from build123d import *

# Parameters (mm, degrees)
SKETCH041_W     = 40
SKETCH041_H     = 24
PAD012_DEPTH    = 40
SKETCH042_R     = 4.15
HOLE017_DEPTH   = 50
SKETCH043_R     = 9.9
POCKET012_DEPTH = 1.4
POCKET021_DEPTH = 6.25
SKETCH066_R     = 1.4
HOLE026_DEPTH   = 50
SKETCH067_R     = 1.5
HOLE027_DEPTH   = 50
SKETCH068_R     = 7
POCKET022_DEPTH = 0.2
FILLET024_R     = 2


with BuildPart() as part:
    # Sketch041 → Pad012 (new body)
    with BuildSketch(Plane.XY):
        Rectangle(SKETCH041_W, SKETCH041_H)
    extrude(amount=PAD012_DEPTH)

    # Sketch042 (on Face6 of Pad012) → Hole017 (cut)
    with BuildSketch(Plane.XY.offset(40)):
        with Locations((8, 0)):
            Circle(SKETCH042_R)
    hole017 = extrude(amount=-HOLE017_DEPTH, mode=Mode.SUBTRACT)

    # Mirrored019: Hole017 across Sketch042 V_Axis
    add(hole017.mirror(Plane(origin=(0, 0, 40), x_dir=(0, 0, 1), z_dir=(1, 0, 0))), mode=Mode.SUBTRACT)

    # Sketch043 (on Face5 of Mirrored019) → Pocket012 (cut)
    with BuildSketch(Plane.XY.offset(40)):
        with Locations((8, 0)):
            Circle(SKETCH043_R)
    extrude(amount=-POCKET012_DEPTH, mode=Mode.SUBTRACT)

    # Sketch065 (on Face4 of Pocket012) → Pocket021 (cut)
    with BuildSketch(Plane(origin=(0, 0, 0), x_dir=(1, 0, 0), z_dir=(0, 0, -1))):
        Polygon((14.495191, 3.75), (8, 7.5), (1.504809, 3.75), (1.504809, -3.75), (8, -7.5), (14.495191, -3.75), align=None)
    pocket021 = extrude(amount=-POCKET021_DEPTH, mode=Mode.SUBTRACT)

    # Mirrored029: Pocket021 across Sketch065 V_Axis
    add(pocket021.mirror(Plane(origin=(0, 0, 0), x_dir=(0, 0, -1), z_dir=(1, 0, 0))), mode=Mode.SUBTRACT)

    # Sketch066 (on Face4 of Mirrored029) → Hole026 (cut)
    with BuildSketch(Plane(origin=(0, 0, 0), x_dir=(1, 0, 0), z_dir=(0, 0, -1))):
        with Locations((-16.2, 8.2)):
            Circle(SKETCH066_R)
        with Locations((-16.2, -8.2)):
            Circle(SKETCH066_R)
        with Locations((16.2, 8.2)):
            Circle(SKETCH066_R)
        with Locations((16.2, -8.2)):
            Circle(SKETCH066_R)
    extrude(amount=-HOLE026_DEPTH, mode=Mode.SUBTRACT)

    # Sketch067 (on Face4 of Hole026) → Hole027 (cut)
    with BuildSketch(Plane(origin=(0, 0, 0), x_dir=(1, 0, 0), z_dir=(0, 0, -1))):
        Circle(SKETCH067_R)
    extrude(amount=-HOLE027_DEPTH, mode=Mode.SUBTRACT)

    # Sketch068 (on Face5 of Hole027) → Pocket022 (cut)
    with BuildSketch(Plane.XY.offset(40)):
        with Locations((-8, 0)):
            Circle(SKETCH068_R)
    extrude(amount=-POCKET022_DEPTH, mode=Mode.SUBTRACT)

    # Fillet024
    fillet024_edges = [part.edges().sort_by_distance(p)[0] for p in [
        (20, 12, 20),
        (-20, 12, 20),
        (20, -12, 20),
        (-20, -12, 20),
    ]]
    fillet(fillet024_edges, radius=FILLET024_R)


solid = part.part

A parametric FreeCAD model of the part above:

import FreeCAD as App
import Part
import Sketcher
Q = App.Units.Quantity


def edges_at(feature, points):
    """Names of the edges that pass closest to the given points."""
    edges = feature.Shape.Edges
    near = lambda p: min(range(len(edges)), key=lambda i: edges[i].distToShape(Part.Vertex(*p))[0])
    return sorted({f"Edge{near(p) + 1}" for p in points})


def add_polygon(sketch, points):
    """Adds a closed chain of lines whose ends are joined by coincident constraints."""
    first, n = sketch.GeometryCount, len(points)
    for a, b in zip(points, points[1:] + points[:1]):
        sketch.addGeometry(Part.LineSegment(App.Vector(*a, 0), App.Vector(*b, 0)), False)
    for i in range(n):
        sketch.addConstraint(Sketcher.Constraint("Coincident", first + i, 2, first + (i + 1) % n, 1))

doc = App.newDocument("Part")
body = doc.addObject("PartDesign::Body", "Body")

sketch1 = body.newObject("Sketcher::SketchObject", "Sketch")
sketch1.AttachmentSupport = (doc.getObject("XY_Plane"), [""])
sketch1.MapMode = "FlatFace"
add_polygon(sketch1, [(-20, 12), (-20, -12), (20, -12), (20, 12)])
sketch1.addConstraint(Sketcher.Constraint("Vertical", 0))
sketch1.addConstraint(Sketcher.Constraint("Horizontal", 1))
sketch1.addConstraint(Sketcher.Constraint("Vertical", 2))
sketch1.addConstraint(Sketcher.Constraint("Horizontal", 3))
sketch1.addConstraint(Sketcher.Constraint("Symmetric", 0, 2, 2, 2, -1, 1))
sketch1.addConstraint(Sketcher.Constraint("DistanceX", 1, 1, 1, 2, Q("40 mm")))
sketch1.addConstraint(Sketcher.Constraint("DistanceY", 0, 2, 0, 1, Q("24 mm")))
pad1 = body.newObject("PartDesign::Pad", "Pad")
pad1.Profile = sketch1
pad1.Length = 40

sketch2 = body.newObject("Sketcher::SketchObject", "Sketch001")
sketch2.AttachmentSupport = (doc.getObject("XY_Plane"), [""])
sketch2.MapMode = "FlatFace"
sketch2.AttachmentOffset = App.Placement(App.Vector(0, 0, 40), App.Rotation())
sketch2.addGeometry(Part.Circle(App.Vector(8, 0, 0), App.Vector(0, 0, 1), 4.2), False)
sketch2.addConstraint(Sketcher.Constraint("PointOnObject", 0, 3, -1))
sketch2.addConstraint(Sketcher.Constraint("Diameter", 0, Q("8.3 mm")))
sketch2.addConstraint(Sketcher.Constraint("DistanceX", -1, 1, 0, 3, Q("8 mm")))
pocket1 = body.newObject("PartDesign::Pocket", "Pocket")
pocket1.Profile = sketch2
pocket1.Length = 50
doc.recompute()

mirrored = body.newObject("PartDesign::Mirrored", "Mirrored")
mirrored.Originals = [pocket1]
mirrored.MirrorPlane = (doc.getObject("YZ_Plane"), [""])
body.Tip = mirrored

sketch3 = body.newObject("Sketcher::SketchObject", "Sketch002")
sketch3.AttachmentSupport = (doc.getObject("XY_Plane"), [""])
sketch3.MapMode = "FlatFace"
sketch3.AttachmentOffset = App.Placement(App.Vector(0, 0, 40), App.Rotation())
sketch3.addGeometry(Part.Circle(App.Vector(8, 0, 0), App.Vector(0, 0, 1), 10), False)
sketch3.addConstraint(Sketcher.Constraint("PointOnObject", 0, 3, -1))
sketch3.addConstraint(Sketcher.Constraint("Diameter", 0, Q("19.8 mm")))
sketch3.addConstraint(Sketcher.Constraint("DistanceX", -1, 1, 0, 3, Q("8 mm")))
pocket2 = body.newObject("PartDesign::Pocket", "Pocket001")
pocket2.Profile = sketch3
pocket2.Length = 1.4

sketch4 = body.newObject("Sketcher::SketchObject", "Sketch003")
sketch4.AttachmentSupport = (doc.getObject("XY_Plane"), [""])
sketch4.MapMode = "FlatFace"
add_polygon(sketch4, [(14, -4), (8, -8), (2, -4), (2, 4), (8, 8), (14, 4)])
sketch4.addConstraint(Sketcher.Constraint("Vertical", 2))
sketch4.addConstraint(Sketcher.Constraint("Vertical", 5))
sketch4.addConstraint(Sketcher.Constraint("Symmetric", 0, 2, 3, 2, -1))
sketch4.addConstraint(Sketcher.Constraint("Parallel", 0, 3))
sketch4.addConstraint(Sketcher.Constraint("Parallel", 1, 4))
sketch4.addConstraint(Sketcher.Constraint("Horizontal", 2, 2, 4, 2))
sketch4.addConstraint(Sketcher.Constraint("Horizontal", 1, 2, 5, 2))
sketch4.addConstraint(Sketcher.Constraint("Angle", 0, Q("-150.000002 deg")))
sketch4.addConstraint(Sketcher.Constraint("DistanceY", 2, 1, 2, 2, Q("7.5 mm")))
sketch4.addConstraint(Sketcher.Constraint("DistanceX", -1, 1, 0, 2, Q("8 mm")))
sketch4.addConstraint(Sketcher.Constraint("DistanceY", 0, 2, 3, 2, Q("15 mm")))
pocket3 = body.newObject("PartDesign::Pocket", "Pocket002")
pocket3.Profile = sketch4
pocket3.Length = 6.25
pocket3.Reversed = True
doc.recompute()

mirrored2 = body.newObject("PartDesign::Mirrored", "Mirrored001")
mirrored2.Originals = [pocket3]
mirrored2.MirrorPlane = (doc.getObject("YZ_Plane"), [""])
body.Tip = mirrored2

sketch5 = body.newObject("Sketcher::SketchObject", "Sketch004")
sketch5.AttachmentSupport = (doc.getObject("XY_Plane"), [""])
sketch5.MapMode = "FlatFace"
sketch5.addGeometry(Part.Circle(App.Vector(-16.2, -8.2, 0), App.Vector(0, 0, 1), 1.4), False)
sketch5.addGeometry(Part.Circle(App.Vector(-16.2, 8.2, 0), App.Vector(0, 0, 1), 1.4), False)
sketch5.addGeometry(Part.Circle(App.Vector(16.2, -8.2, 0), App.Vector(0, 0, 1), 1.4), False)
sketch5.addGeometry(Part.Circle(App.Vector(16.2, 8.2, 0), App.Vector(0, 0, 1), 1.4), False)
sketch5.addConstraint(Sketcher.Constraint("Equal", 0, 1))
sketch5.addConstraint(Sketcher.Constraint("Equal", 1, 2))
sketch5.addConstraint(Sketcher.Constraint("Equal", 2, 3))
sketch5.addConstraint(Sketcher.Constraint("Symmetric", 1, 3, 2, 3, -1, 1))
sketch5.addConstraint(Sketcher.Constraint("Symmetric", 0, 3, 3, 3, -1, 1))
sketch5.addConstraint(Sketcher.Constraint("Symmetric", 0, 3, 2, 3, -2))
sketch5.addConstraint(Sketcher.Constraint("Diameter", 0, Q("2.8 mm")))
sketch5.addConstraint(Sketcher.Constraint("DistanceX", 0, 3, -1, 1, Q("16.2 mm")))
sketch5.addConstraint(Sketcher.Constraint("DistanceY", 0, 3, -1, 1, Q("8.2 mm")))
pocket4 = body.newObject("PartDesign::Pocket", "Pocket003")
pocket4.Profile = sketch5
pocket4.Length = 50
pocket4.Reversed = True

sketch6 = body.newObject("Sketcher::SketchObject", "Sketch005")
sketch6.AttachmentSupport = (doc.getObject("XY_Plane"), [""])
sketch6.MapMode = "FlatFace"
sketch6.addGeometry(Part.Circle(App.Vector(0, 0, 0), App.Vector(0, 0, 1), 1.5), False)
sketch6.addConstraint(Sketcher.Constraint("Coincident", 0, 3, -1, 1))
sketch6.addConstraint(Sketcher.Constraint("Diameter", 0, Q("3 mm")))
pocket5 = body.newObject("PartDesign::Pocket", "Pocket004")
pocket5.Profile = sketch6
pocket5.Length = 50
pocket5.Reversed = True

sketch7 = body.newObject("Sketcher::SketchObject", "Sketch006")
sketch7.AttachmentSupport = (doc.getObject("XY_Plane"), [""])
sketch7.MapMode = "FlatFace"
sketch7.AttachmentOffset = App.Placement(App.Vector(0, 0, 40), App.Rotation())
sketch7.addGeometry(Part.Circle(App.Vector(-8, 0, 0), App.Vector(0, 0, 1), 7), False)
sketch7.addConstraint(Sketcher.Constraint("PointOnObject", 0, 3, -1))
sketch7.addConstraint(Sketcher.Constraint("Diameter", 0, Q("14 mm")))
sketch7.addConstraint(Sketcher.Constraint("DistanceX", 0, 3, -1, 1, Q("8 mm")))
pocket6 = body.newObject("PartDesign::Pocket", "Pocket005")
pocket6.Profile = sketch7
pocket6.Length = 0.2
doc.recompute()

fillet = body.newObject("PartDesign::Fillet", "Fillet")
fillet.Base = (pocket6, edges_at(pocket6, [
    (20, 12, 20),
    (-20, 12, 20),
    (20, -12, 20),
    (-20, -12, 20),
]))
fillet.Radius = 2

doc.recompute()
